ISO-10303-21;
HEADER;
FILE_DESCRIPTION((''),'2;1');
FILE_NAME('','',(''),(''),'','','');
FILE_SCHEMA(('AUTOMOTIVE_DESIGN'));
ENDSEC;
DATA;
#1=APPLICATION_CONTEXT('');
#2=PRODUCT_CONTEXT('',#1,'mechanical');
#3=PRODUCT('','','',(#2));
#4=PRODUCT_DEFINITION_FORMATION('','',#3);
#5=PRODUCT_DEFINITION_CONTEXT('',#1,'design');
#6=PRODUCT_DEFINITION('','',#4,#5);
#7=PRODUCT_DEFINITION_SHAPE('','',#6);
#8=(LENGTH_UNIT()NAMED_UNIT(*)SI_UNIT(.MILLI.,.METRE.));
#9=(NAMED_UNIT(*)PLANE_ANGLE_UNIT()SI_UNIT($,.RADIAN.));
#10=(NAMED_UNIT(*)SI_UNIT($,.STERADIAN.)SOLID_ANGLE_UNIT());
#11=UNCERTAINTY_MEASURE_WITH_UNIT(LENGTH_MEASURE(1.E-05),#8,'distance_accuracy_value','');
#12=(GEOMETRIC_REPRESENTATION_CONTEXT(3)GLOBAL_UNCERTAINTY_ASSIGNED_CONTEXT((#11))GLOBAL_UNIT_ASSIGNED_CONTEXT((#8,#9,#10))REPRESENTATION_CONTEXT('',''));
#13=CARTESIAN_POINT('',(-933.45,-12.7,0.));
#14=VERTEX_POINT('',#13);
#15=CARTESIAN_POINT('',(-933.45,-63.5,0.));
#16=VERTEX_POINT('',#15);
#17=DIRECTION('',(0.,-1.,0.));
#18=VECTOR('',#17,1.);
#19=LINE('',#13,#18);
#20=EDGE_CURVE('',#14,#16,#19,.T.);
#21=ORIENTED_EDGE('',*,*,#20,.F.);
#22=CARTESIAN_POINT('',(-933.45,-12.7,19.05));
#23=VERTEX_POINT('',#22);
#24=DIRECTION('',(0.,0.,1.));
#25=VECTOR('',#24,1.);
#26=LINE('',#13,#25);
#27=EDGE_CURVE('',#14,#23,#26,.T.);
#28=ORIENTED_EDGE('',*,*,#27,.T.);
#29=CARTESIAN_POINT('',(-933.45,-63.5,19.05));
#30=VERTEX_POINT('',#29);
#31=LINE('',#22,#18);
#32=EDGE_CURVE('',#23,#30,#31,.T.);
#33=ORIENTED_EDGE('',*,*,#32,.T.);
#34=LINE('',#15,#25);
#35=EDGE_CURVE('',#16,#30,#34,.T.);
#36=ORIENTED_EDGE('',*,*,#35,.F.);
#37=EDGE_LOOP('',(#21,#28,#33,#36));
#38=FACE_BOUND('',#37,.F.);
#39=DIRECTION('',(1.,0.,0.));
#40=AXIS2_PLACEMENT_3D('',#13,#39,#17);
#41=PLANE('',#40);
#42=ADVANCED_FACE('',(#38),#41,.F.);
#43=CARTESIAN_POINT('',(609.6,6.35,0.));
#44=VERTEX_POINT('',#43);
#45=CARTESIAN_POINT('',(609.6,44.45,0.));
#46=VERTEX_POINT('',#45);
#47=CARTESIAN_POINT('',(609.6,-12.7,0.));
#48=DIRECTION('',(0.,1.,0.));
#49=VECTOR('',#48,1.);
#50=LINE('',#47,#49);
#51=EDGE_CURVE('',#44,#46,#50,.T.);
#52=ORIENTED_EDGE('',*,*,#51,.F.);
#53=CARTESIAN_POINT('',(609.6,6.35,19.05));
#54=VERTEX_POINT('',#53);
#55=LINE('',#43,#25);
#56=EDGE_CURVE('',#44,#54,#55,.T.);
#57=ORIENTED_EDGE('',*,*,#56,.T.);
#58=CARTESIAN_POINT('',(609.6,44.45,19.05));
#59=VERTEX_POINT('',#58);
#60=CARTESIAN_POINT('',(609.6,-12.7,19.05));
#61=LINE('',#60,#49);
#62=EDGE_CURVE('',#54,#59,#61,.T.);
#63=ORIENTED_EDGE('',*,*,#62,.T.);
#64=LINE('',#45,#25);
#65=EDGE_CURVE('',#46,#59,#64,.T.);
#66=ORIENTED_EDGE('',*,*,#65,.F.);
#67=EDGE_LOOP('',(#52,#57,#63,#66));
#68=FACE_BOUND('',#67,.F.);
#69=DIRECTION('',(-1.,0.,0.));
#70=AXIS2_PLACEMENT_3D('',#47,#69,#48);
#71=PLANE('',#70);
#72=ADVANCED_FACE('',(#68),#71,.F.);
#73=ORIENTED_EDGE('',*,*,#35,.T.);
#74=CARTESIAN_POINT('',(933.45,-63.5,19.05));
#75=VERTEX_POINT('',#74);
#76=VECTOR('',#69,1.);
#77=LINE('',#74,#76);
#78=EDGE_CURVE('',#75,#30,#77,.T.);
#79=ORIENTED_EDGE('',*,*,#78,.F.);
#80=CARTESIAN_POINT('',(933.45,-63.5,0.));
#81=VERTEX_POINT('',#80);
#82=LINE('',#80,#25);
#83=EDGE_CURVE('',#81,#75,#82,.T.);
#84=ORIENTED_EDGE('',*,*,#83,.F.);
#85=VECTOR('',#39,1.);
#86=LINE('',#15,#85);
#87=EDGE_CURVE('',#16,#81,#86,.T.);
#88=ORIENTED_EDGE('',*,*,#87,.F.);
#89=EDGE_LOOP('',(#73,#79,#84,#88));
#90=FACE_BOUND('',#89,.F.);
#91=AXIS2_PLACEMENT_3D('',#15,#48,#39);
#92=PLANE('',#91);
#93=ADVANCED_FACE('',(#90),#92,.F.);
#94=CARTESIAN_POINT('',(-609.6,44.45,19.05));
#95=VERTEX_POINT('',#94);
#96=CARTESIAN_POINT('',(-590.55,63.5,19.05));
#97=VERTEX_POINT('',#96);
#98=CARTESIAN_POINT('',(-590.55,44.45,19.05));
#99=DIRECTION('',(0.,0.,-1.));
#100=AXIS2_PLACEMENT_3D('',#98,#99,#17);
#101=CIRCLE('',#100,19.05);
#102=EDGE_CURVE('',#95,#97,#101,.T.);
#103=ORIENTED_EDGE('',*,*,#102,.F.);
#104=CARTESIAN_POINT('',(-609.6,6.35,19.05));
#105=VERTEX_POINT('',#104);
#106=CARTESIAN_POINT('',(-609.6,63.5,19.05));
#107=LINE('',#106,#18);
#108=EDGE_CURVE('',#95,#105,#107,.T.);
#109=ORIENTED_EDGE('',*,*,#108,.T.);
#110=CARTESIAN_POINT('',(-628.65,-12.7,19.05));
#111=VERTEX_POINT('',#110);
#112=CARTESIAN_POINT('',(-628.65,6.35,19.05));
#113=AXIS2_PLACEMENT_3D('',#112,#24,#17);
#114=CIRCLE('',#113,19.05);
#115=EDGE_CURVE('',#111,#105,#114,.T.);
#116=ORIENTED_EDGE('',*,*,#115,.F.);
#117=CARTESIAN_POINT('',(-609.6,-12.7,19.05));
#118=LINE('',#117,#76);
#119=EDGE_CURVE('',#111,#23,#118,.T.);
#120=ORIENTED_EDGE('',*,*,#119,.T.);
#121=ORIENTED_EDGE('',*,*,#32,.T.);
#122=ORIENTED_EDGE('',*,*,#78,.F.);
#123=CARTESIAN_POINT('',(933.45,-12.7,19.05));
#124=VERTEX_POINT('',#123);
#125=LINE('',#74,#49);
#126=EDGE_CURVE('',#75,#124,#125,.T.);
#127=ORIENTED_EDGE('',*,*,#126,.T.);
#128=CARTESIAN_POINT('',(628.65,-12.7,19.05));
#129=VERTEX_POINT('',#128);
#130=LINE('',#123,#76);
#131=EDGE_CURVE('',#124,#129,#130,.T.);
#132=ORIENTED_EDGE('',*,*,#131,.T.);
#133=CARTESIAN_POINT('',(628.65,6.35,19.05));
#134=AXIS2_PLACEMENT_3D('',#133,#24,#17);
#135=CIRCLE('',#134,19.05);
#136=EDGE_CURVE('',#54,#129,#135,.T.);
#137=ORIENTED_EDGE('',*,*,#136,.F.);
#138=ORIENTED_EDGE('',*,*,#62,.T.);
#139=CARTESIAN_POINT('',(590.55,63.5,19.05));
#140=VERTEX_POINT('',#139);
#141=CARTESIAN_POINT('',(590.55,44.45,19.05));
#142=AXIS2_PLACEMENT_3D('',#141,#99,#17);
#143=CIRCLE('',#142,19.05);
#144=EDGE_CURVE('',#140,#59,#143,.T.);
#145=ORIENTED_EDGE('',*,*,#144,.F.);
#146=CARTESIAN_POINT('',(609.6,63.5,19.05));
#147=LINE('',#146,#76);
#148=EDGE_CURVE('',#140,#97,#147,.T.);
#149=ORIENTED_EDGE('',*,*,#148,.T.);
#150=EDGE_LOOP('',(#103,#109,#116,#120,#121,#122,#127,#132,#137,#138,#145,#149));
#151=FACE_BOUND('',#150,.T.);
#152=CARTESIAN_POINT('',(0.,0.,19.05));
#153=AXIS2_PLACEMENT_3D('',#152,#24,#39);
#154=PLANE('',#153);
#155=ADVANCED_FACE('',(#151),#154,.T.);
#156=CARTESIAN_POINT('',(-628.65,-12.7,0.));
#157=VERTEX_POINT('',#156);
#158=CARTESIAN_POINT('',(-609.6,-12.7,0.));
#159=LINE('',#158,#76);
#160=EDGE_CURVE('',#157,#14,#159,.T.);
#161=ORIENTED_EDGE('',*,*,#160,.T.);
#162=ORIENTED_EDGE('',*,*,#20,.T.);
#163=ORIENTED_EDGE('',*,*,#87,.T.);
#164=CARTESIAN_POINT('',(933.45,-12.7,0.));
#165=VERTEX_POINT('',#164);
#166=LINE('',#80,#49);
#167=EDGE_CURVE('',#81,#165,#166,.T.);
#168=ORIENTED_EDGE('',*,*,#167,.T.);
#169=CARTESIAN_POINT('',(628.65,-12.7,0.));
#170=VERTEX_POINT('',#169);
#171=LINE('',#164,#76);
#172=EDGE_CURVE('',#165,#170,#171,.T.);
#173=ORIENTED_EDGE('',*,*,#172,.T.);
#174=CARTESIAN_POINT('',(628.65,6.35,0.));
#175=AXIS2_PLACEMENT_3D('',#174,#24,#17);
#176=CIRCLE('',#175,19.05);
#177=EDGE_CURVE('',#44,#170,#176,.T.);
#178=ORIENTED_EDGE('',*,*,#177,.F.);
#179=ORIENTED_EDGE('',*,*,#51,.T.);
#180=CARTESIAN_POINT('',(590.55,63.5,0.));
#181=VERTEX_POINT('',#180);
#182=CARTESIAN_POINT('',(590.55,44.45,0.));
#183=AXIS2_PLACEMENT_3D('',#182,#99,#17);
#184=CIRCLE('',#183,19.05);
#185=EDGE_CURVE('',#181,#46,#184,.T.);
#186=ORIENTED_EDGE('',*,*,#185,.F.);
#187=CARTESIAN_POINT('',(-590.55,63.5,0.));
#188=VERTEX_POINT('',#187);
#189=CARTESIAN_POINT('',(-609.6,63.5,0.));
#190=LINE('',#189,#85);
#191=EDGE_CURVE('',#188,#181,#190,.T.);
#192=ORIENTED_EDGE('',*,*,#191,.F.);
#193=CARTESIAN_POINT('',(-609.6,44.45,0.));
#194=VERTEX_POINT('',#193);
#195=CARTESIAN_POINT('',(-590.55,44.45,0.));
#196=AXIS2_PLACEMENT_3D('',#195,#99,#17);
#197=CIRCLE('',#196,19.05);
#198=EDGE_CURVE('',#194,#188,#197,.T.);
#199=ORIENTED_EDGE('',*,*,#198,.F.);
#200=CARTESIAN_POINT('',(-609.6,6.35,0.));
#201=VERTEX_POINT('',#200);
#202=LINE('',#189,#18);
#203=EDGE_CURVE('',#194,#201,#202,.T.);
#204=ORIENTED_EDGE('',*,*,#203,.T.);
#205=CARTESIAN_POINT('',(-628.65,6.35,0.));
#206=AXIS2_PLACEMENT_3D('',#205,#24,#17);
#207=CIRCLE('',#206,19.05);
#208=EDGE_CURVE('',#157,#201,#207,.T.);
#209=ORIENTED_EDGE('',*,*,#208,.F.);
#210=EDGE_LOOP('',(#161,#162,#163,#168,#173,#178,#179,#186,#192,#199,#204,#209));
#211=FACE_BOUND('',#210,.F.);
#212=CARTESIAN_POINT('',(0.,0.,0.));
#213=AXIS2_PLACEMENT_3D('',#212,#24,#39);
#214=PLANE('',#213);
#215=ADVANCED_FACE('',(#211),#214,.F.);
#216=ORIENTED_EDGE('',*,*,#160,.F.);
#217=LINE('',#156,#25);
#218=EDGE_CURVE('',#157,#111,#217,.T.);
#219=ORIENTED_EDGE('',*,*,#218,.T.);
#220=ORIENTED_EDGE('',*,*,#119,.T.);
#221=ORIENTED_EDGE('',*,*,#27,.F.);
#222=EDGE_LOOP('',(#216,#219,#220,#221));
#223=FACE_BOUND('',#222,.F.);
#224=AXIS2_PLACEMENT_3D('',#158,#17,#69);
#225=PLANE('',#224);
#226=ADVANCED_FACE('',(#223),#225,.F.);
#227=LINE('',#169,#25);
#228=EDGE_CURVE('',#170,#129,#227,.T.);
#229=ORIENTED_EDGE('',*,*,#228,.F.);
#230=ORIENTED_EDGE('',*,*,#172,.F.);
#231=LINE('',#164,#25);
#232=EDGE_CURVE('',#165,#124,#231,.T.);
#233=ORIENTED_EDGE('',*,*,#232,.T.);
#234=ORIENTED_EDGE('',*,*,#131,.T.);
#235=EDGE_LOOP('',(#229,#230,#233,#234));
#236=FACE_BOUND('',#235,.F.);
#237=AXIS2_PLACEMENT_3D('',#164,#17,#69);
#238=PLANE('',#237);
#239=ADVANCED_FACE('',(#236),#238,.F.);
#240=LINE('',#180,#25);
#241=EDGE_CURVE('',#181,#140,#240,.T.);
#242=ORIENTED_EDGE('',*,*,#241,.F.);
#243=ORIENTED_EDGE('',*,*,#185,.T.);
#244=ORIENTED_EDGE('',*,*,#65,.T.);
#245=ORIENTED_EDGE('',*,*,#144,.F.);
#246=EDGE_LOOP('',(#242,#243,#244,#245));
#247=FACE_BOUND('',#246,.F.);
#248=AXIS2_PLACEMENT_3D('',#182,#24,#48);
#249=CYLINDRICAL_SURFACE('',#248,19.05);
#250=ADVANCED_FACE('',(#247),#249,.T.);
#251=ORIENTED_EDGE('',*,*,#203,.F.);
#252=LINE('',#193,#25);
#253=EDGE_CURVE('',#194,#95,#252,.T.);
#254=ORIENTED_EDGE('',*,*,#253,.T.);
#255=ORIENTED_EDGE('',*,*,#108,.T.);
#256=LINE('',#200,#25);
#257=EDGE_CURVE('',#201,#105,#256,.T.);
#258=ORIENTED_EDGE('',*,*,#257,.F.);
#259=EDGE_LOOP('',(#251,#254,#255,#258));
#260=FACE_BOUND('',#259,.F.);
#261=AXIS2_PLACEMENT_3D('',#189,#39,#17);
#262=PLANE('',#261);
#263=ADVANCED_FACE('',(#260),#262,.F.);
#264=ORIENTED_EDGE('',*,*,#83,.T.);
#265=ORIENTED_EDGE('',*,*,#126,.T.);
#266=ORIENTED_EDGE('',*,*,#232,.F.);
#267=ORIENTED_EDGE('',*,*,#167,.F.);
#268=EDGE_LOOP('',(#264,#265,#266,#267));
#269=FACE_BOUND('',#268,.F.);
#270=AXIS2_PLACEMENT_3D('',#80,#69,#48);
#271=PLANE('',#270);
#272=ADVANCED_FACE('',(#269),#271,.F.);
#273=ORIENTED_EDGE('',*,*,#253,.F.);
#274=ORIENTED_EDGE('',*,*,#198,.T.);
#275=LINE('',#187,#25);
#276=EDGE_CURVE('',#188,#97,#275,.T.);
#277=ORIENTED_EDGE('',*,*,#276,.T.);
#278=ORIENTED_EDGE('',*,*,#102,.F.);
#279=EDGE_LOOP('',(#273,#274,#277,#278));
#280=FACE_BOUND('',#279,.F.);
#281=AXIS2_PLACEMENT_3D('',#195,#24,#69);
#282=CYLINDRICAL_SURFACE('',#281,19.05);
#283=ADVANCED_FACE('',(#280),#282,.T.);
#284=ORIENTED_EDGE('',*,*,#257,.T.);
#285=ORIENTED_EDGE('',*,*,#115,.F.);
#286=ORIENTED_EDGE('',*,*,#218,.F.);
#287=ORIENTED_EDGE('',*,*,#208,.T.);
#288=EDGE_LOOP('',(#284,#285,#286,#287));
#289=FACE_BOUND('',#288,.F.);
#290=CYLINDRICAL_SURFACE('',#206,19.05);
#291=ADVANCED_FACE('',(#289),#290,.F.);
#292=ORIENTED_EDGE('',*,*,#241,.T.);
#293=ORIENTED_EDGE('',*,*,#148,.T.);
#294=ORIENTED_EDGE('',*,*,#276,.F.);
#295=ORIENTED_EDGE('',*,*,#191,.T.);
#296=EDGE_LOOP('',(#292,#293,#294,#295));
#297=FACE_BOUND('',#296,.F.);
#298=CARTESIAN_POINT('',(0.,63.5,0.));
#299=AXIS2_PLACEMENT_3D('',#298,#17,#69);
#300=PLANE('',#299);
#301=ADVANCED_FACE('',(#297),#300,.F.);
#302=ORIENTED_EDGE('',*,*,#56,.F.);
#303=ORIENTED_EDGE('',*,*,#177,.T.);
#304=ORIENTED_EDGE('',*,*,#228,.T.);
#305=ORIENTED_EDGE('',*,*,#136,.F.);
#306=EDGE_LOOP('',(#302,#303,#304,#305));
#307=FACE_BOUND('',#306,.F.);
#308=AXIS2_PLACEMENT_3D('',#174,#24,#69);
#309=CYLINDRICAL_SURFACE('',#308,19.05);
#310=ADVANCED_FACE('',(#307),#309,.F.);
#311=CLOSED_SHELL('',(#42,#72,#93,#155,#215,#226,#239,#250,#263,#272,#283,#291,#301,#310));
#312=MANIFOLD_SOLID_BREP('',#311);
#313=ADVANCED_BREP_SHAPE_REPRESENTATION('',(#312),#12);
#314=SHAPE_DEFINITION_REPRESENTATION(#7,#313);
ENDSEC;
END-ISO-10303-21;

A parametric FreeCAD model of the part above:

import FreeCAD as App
import Part
import Sketcher
Q = App.Units.Quantity


def edges_at(feature, points):
    """Names of the edges that pass closest to the given points."""
    edges = feature.Shape.Edges
    near = lambda p: min(range(len(edges)), key=lambda i: edges[i].distToShape(Part.Vertex(*p))[0])
    return sorted({f"Edge{near(p) + 1}" for p in points})

doc = App.newDocument("Part")
params = doc.addObject("Spreadsheet::Sheet", "Params")
for row, (alias, value) in enumerate([
    ("sketch1_width", "48 in"),
    ("sketch1_height", "2 in"),
    ("sketch1_width2", "12.75 in"),
    ("pad1_length", "0.75 in"),
    ("fillet_radius", "0.75 in"),
], start=1):
    params.set(f"A{row}", alias)
    params.set(f"B{row}", "=" + value)
    params.setAlias(f"B{row}", alias)

body = doc.addObject("PartDesign::Body", "Body")

sketch1 = body.newObject("Sketcher::SketchObject", "Sketch")
sketch1.AttachmentSupport = (doc.getObject("XY_Plane"), [""])
sketch1.MapMode = "FlatFace"
sketch1.addGeometry(Part.LineSegment(App.Vector(-933, -64, 0), App.Vector(933, -64, 0)), False)
sketch1.addGeometry(Part.LineSegment(App.Vector(933, -64, 0), App.Vector(933, -13, 0)), False)
sketch1.addGeometry(Part.LineSegment(App.Vector(933, -13, 0), App.Vector(610, -13, 0)), False)
sketch1.addGeometry(Part.LineSegment(App.Vector(610, -13, 0), App.Vector(610, 64, 0)), False)
sketch1.addGeometry(Part.LineSegment(App.Vector(610, 64, 0), App.Vector(-610, 64, 0)), False)
sketch1.addGeometry(Part.LineSegment(App.Vector(-610, 64, 0), App.Vector(-610, -13, 0)), False)
sketch1.addGeometry(Part.LineSegment(App.Vector(-610, -13, 0), App.Vector(-933, -13, 0)), False)
sketch1.addGeometry(Part.LineSegment(App.Vector(-933, -13, 0), App.Vector(-933, -64, 0)), False)
sketch1.addConstraint(Sketcher.Constraint("Coincident", 0, 2, 1, 1))
sketch1.addConstraint(Sketcher.Constraint("Coincident", 1, 2, 2, 1))
sketch1.addConstraint(Sketcher.Constraint("Coincident", 2, 2, 3, 1))
sketch1.addConstraint(Sketcher.Constraint("Coincident", 3, 2, 4, 1))
sketch1.addConstraint(Sketcher.Constraint("Coincident", 4, 2, 5, 1))
sketch1.addConstraint(Sketcher.Constraint("Coincident", 5, 2, 6, 1))
sketch1.addConstraint(Sketcher.Constraint("Coincident", 6, 2, 7, 1))
sketch1.addConstraint(Sketcher.Constraint("Coincident", 7, 2, 0, 1))
sketch1.addConstraint(Sketcher.Constraint("Horizontal", 0))
sketch1.addConstraint(Sketcher.Constraint("Vertical", 1))
sketch1.addConstraint(Sketcher.Constraint("Horizontal", 2))
sketch1.addConstraint(Sketcher.Constraint("Vertical", 3))
sketch1.addConstraint(Sketcher.Constraint("Horizontal", 4))
sketch1.addConstraint(Sketcher.Constraint("Vertical", 5))
sketch1.addConstraint(Sketcher.Constraint("Horizontal", 6))
sketch1.addConstraint(Sketcher.Constraint("Vertical", 7))
sketch1.addConstraint(Sketcher.Constraint("Symmetric", 2, 2, 5, 2, -2))
sketch1.addConstraint(Sketcher.Constraint("Equal", 2, 6))
sketch1.addConstraint(Sketcher.Constraint("DistanceX", 4, 2, 4, 1, Q("48 in")))
sketch1.addConstraint(Sketcher.Constraint("DistanceY", 1, 1, 1, 2, Q("2 in")))
sketch1.addConstraint(Sketcher.Constraint("DistanceY", 0, 2, 3, 2, Q("5 in")))
sketch1.addConstraint(Sketcher.Constraint("DistanceX", 2, 2, 2, 1, Q("12.75 in")))
sketch1.addConstraint(Sketcher.Constraint("DistanceY", 0, 2, -1, 1, Q("2.5 in")))
sketch1.setExpression("Constraints[18]", "Params.sketch1_width")
sketch1.setExpression("Constraints[19]", "Params.sketch1_height")
sketch1.setExpression("Constraints[21]", "Params.sketch1_width2")
pad1 = body.newObject("PartDesign::Pad", "Pad")
pad1.Profile = sketch1
pad1.setExpression("Length", "Params.pad1_length")
doc.recompute()

fillet = body.newObject("PartDesign::Fillet", "Fillet")
fillet.Base = (pad1, edges_at(pad1, [
    (-609.6, -12.7, 9.525),
    (-609.6, 63.5, 9.525),
    (609.6, 63.5, 9.525),
    (609.6, -12.7, 9.525),
]))
fillet.setExpression("Radius", "Params.fillet_radius")

doc.recompute()
